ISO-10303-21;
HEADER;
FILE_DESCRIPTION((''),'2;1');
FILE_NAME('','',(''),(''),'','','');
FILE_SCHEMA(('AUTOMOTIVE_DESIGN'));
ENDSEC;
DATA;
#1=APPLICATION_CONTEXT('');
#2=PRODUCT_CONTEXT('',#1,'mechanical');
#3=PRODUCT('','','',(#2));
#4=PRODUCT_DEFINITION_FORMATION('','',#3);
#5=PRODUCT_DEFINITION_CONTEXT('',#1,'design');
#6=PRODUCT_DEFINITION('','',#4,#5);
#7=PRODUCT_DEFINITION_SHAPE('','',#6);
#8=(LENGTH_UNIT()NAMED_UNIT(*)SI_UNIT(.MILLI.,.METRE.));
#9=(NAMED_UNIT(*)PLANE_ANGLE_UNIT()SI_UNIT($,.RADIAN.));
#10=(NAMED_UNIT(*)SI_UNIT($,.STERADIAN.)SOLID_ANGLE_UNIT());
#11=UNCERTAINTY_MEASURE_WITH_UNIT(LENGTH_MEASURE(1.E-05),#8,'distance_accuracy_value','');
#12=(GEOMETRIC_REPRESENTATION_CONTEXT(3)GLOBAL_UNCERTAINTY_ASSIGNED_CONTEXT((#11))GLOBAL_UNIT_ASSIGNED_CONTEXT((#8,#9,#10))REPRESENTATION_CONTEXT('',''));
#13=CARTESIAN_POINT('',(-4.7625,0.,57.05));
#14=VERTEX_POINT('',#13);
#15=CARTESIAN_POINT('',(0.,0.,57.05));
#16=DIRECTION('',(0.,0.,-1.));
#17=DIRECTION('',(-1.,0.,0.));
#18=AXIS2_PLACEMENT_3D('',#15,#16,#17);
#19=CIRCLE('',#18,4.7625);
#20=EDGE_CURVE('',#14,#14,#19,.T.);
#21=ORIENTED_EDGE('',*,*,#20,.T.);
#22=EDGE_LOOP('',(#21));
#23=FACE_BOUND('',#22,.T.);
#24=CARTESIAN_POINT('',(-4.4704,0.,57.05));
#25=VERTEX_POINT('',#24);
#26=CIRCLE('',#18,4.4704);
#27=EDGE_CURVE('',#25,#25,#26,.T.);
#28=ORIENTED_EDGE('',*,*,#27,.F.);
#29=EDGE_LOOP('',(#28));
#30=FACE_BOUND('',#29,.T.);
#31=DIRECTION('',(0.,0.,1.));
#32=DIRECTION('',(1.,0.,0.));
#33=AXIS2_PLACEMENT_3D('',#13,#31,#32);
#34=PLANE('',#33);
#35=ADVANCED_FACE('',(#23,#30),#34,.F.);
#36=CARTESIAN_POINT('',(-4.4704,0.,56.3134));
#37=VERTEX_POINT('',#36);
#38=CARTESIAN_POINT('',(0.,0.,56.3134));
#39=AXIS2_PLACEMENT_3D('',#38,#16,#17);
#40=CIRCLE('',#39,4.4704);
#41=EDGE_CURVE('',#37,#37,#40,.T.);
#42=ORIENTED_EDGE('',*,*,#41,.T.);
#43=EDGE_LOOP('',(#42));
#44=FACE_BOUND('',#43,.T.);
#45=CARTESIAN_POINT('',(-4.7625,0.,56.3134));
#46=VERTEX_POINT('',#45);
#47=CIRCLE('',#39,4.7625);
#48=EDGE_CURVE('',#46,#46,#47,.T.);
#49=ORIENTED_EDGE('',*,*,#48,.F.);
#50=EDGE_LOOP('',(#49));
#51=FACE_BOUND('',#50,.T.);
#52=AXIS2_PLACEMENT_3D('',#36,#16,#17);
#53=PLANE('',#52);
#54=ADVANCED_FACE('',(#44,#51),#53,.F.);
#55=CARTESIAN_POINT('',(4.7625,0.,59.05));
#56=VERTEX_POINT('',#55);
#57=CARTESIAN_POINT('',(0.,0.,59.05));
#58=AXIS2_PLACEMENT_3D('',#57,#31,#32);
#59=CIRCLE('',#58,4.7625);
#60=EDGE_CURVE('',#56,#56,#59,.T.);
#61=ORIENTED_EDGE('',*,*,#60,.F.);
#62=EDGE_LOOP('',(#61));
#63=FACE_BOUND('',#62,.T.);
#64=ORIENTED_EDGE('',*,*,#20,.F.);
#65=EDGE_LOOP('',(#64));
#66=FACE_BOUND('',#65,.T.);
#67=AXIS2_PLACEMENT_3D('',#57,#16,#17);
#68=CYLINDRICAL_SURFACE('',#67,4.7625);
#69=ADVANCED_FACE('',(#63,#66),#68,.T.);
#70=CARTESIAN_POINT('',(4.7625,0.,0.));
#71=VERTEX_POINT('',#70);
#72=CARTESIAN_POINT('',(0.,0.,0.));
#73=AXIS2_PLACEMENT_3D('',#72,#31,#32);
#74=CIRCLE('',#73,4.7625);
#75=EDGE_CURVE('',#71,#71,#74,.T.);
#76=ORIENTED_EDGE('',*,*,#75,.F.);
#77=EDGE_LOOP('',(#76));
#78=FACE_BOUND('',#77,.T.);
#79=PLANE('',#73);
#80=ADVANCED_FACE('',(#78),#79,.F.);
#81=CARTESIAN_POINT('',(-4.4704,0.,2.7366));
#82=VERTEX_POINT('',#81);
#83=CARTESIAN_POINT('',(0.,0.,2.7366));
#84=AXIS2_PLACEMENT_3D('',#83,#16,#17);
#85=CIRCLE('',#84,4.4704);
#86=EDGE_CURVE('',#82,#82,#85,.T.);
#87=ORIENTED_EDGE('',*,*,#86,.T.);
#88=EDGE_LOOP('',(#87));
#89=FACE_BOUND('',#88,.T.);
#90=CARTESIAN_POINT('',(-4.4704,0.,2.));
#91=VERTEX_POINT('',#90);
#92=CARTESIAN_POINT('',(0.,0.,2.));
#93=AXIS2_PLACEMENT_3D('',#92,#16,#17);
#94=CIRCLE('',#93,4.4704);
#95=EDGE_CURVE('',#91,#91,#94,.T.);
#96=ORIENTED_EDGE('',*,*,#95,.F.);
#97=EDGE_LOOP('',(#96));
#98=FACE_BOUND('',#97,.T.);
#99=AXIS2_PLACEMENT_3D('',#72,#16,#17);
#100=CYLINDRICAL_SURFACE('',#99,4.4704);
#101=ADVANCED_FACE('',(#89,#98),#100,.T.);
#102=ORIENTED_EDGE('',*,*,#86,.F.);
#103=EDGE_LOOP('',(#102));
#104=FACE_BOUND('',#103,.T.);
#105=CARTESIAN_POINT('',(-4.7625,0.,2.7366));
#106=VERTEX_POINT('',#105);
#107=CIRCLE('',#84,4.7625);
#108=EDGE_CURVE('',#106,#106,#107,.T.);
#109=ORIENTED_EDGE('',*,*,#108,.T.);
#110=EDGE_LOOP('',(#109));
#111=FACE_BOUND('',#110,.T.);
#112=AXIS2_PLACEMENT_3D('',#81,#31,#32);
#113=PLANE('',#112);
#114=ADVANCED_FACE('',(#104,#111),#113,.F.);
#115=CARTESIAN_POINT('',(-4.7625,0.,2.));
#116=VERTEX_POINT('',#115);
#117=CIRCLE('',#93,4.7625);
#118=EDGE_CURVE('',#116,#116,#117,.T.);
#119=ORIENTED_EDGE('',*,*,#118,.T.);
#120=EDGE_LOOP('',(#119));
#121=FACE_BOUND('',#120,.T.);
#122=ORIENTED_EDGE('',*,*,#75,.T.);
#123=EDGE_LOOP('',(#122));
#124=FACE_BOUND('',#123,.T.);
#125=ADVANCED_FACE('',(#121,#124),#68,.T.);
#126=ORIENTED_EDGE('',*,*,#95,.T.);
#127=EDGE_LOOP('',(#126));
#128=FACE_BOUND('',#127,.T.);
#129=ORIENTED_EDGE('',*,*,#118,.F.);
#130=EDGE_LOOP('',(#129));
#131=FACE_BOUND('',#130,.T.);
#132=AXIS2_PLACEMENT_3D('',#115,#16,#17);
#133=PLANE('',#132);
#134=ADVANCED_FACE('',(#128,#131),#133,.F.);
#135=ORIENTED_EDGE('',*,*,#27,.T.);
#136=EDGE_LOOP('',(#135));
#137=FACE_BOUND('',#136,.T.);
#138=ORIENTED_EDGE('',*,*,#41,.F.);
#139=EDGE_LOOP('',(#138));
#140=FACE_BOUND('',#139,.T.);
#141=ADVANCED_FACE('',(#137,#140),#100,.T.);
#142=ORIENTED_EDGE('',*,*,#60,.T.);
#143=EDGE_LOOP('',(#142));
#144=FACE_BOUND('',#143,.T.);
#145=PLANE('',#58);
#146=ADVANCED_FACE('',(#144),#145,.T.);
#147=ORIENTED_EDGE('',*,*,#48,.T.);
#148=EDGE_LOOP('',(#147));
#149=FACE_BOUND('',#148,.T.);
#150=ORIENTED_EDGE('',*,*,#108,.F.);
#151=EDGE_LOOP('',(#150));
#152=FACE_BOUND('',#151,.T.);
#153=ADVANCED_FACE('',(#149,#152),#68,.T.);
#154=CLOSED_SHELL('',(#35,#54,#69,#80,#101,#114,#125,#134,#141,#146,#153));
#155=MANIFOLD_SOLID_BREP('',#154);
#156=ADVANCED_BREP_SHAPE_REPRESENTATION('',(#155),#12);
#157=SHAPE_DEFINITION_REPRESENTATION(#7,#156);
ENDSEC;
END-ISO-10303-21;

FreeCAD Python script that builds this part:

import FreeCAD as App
import Part
import Sketcher

V = App.Vector
Q = App.Units.Quantity


def add_polygon(sketch, points):
    """Adds a closed chain of lines whose ends are joined by coincident constraints."""
    first, n = sketch.GeometryCount, len(points)
    for a, b in zip(points, points[1:] + points[:1]):
        sketch.addGeometry(Part.LineSegment(App.Vector(*a, 0), App.Vector(*b, 0)), False)
    for i in range(n):
        sketch.addConstraint(Sketcher.Constraint("Coincident", first + i, 2, first + (i + 1) % n, 1))

doc = App.newDocument("Part")
body = doc.addObject("PartDesign::Body", "Body")

sketch1 = doc.addObject("Sketcher::SketchObject", "Sketch")
body.addObject(sketch1)
sketch1.AttachmentSupport = (doc.XY_Plane, [""])
sketch1.MapMode = "FlatFace"
sketch1.addGeometry(Part.Circle(V(0, 0, 0), V(0, 0, 1), 4.8), False)
sketch1.addConstraint([
    Sketcher.Constraint("Coincident", 0, 3, -1, 1),
    Sketcher.Constraint("Diameter", 0, Q("0.375 in")),
])
pad1 = doc.addObject("PartDesign::Pad", "Pad")
body.addObject(pad1)
pad1.Profile = sketch1
pad1.Length = 59.05

sketch2 = doc.addObject("Sketcher::SketchObject", "Sketch001")
body.addObject(sketch2)
sketch2.AttachmentSupport = (doc.XZ_Plane, [""])
sketch2.MapMode = "FlatFace"
add_polygon(sketch2, [(-4.76, 2), (-4.76, 2.74), (-4.47, 2.74), (-4.47, 2)])
add_polygon(sketch2, [(-4.76, 56.31), (-4.76, 57.05), (-4.47, 57.05), (-4.47, 56.31)])
sketch2.addConstraint([
    Sketcher.Constraint("Vertical", 0),
    Sketcher.Constraint("Horizontal", 1),
    Sketcher.Constraint("Vertical", 2),
    Sketcher.Constraint("Horizontal", 3),
    Sketcher.Constraint("Vertical", 4),
    Sketcher.Constraint("Horizontal", 5),
    Sketcher.Constraint("Vertical", 6),
    Sketcher.Constraint("Horizontal", 7),
    Sketcher.Constraint("Vertical", 3, 2, 4, 2),
    Sketcher.Constraint("Vertical", 2, 2, 5, 2),
    Sketcher.Constraint("Equal", 2, 4),
    Sketcher.Constraint("DistanceY", 0, 1, 0, 2, Q("0.029 in")),
    Sketcher.Constraint("DistanceX", 1, 1, 1, 2, Q("0.0115 in")),
    Sketcher.Constraint("DistanceX", 0, 2, -1, 1, Q("0.1875 in")),
    Sketcher.Constraint("DistanceY", -1, 1, 0, 2, Q("2.7366 mm")),
    Sketcher.Constraint("DistanceY", -1, 1, 4, 2, Q("57.05 mm")),
])
groove = doc.addObject("PartDesign::Groove", "Groove")
body.addObject(groove)
groove.Profile = sketch2
groove.ReferenceAxis = (sketch2, ["V_Axis"])
groove.Angle = 360

doc.recompute()
